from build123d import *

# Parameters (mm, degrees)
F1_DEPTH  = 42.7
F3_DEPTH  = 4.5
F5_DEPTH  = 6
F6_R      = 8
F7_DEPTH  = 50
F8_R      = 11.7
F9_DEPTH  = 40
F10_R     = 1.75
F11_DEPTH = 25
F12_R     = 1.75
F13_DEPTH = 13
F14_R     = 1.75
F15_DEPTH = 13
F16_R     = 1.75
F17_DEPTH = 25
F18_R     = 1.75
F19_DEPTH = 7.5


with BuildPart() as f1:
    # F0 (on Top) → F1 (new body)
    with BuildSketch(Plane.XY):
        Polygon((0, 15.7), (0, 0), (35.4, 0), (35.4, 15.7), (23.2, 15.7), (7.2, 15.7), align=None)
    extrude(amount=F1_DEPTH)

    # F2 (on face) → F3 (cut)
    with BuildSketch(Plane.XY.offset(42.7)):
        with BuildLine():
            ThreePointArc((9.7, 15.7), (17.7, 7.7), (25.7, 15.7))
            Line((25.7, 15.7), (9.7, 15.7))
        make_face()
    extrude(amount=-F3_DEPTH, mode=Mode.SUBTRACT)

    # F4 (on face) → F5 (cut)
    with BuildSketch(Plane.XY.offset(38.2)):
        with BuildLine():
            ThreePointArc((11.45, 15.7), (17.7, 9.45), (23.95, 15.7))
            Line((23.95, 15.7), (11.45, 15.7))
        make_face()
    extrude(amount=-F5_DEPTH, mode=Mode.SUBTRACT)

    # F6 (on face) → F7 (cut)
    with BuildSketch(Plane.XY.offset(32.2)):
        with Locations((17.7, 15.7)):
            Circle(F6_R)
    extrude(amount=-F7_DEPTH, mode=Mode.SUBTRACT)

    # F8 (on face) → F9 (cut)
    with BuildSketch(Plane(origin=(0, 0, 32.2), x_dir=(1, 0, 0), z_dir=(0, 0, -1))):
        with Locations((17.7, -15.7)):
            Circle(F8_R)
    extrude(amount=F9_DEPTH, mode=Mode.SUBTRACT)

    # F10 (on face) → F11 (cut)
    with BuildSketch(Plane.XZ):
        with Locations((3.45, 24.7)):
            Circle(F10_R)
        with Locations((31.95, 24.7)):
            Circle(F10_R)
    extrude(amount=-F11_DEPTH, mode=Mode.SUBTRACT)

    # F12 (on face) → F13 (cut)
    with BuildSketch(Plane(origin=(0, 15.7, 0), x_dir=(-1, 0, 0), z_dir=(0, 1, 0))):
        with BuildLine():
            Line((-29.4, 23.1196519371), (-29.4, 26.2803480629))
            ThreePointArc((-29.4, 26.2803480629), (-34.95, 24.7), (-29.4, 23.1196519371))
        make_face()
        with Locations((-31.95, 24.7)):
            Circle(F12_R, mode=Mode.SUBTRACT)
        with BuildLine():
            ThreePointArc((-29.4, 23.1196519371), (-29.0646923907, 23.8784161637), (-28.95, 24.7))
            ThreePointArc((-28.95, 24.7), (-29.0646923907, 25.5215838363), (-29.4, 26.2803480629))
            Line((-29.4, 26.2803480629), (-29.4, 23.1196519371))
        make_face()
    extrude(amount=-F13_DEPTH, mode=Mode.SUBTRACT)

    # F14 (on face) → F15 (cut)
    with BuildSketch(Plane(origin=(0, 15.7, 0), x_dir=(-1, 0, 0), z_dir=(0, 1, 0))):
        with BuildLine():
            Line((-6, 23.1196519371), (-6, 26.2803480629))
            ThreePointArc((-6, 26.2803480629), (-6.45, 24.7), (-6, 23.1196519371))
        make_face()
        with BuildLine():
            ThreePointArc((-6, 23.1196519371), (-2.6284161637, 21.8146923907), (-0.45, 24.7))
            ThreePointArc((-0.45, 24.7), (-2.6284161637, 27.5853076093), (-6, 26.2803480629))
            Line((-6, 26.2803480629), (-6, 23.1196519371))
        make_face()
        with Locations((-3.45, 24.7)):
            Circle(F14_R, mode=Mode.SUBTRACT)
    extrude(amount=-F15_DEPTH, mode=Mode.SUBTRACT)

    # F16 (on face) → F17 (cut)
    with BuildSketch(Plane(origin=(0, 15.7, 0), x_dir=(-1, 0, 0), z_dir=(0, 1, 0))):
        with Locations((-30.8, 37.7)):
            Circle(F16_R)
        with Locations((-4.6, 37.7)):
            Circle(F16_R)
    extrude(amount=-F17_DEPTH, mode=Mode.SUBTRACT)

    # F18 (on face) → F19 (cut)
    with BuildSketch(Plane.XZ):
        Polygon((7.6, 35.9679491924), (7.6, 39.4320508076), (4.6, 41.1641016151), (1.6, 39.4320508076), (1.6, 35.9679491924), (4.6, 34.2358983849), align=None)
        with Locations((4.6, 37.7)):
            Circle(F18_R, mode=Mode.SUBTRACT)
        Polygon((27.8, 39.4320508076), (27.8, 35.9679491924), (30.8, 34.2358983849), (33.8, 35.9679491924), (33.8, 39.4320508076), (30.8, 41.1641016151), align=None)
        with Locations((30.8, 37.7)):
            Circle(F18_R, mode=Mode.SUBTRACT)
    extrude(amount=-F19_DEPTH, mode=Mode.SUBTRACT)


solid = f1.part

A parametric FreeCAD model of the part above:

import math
import FreeCAD as App
import Part
import Sketcher
from FreeCAD import Vector
Q = App.Units.Quantity


def add_polygon(sketch, points):
    """Adds a closed chain of lines whose ends are joined by coincident constraints."""
    first, n = sketch.GeometryCount, len(points)
    for a, b in zip(points, points[1:] + points[:1]):
        sketch.addGeometry(Part.LineSegment(App.Vector(*a, 0), App.Vector(*b, 0)), False)
    for i in range(n):
        sketch.addConstraint(Sketcher.Constraint("Coincident", first + i, 2, first + (i + 1) % n, 1))

doc = App.newDocument("Part")
body = doc.addObject("PartDesign::Body", "Body")

sketch1 = body.newObject("Sketcher::SketchObject", "Sketch")
sketch1.AttachmentSupport = (doc.getObject("XY_Plane"), [""])
sketch1.MapMode = "FlatFace"
add_polygon(sketch1, [(0, 15.7), (0, 0), (35.4, 0), (35.4, 15.7)])
sketch1.addConstraint([
    Sketcher.Constraint("Vertical", 0),
    Sketcher.Constraint("Horizontal", 1),
    Sketcher.Constraint("Vertical", 2),
    Sketcher.Constraint("Horizontal", 3),
    Sketcher.Constraint("Coincident", 0, 2, -1, 1),
    Sketcher.Constraint("DistanceX", 1, 1, 1, 2, Q("35.4 mm")),
    Sketcher.Constraint("DistanceY", 0, 2, 0, 1, Q("15.7 mm")),
])
pad1 = body.newObject("PartDesign::Pad", "Pad")
pad1.Profile = sketch1
pad1.Length = 42.7

sketch2 = body.newObject("Sketcher::SketchObject", "Sketch001")
sketch2.AttachmentSupport = (doc.getObject("XY_Plane"), [""])
sketch2.MapMode = "FlatFace"
sketch2.AttachmentOffset = App.Placement(Vector(0, 0, 42.7), App.Rotation())
sketch2.addGeometry([
    Part.ArcOfCircle(Part.Circle(Vector(17.7, 15.7, 0), Vector(0, 0, 1), 8), math.radians(180), math.radians(360)),
    Part.LineSegment(Vector(25.7, 15.7, 0), Vector(9.7, 15.7, 0)),
], False)
sketch2.addConstraint([
    Sketcher.Constraint("Coincident", 0, 1, 1, 2),
    Sketcher.Constraint("Coincident", 1, 1, 0, 2),
    Sketcher.Constraint("Horizontal", 1),
    Sketcher.Constraint("Radius", 0, Q("8 mm")),
    Sketcher.Constraint("DistanceX", -1, 1, 0, 3, Q("17.7 mm")),
    Sketcher.Constraint("DistanceY", -1, 1, 0, 3, Q("15.7 mm")),
    Sketcher.Constraint("DistanceY", -1, 1, 0, 1, Q("15.7 mm")),
])
pocket1 = body.newObject("PartDesign::Pocket", "Pocket")
pocket1.Profile = sketch2
pocket1.Length = 4.5

sketch3 = body.newObject("Sketcher::SketchObject", "Sketch002")
sketch3.AttachmentSupport = (doc.getObject("XY_Plane"), [""])
sketch3.MapMode = "FlatFace"
sketch3.AttachmentOffset = App.Placement(Vector(0, 0, 38.2), App.Rotation())
sketch3.addGeometry([
    Part.ArcOfCircle(Part.Circle(Vector(17.7, 15.7, 0), Vector(0, 0, 1), 6.25), math.radians(180), math.radians(360)),
    Part.LineSegment(Vector(23.95, 15.7, 0), Vector(11.45, 15.7, 0)),
], False)
sketch3.addConstraint([
    Sketcher.Constraint("Coincident", 0, 1, 1, 2),
    Sketcher.Constraint("Coincident", 1, 1, 0, 2),
    Sketcher.Constraint("Horizontal", 1),
    Sketcher.Constraint("Radius", 0, Q("6.25 mm")),
    Sketcher.Constraint("DistanceX", -1, 1, 0, 3, Q("17.7 mm")),
    Sketcher.Constraint("DistanceY", -1, 1, 0, 3, Q("15.7 mm")),
    Sketcher.Constraint("DistanceY", -1, 1, 0, 1, Q("15.7 mm")),
])
pocket2 = body.newObject("PartDesign::Pocket", "Pocket001")
pocket2.Profile = sketch3
pocket2.Length = 6

sketch4 = body.newObject("Sketcher::SketchObject", "Sketch003")
sketch4.AttachmentSupport = (doc.getObject("XY_Plane"), [""])
sketch4.MapMode = "FlatFace"
sketch4.AttachmentOffset = App.Placement(Vector(0, 0, 32.2), App.Rotation())
sketch4.addGeometry(Part.Circle(Vector(17.7, 15.7, 0), Vector(0, 0, 1), 8), False)
sketch4.addConstraint([
    Sketcher.Constraint("Diameter", 0, Q("16 mm")),
    Sketcher.Constraint("DistanceX", -1, 1, 0, 3, Q("17.7 mm")),
    Sketcher.Constraint("DistanceY", -1, 1, 0, 3, Q("15.7 mm")),
])
pocket3 = body.newObject("PartDesign::Pocket", "Pocket002")
pocket3.Profile = sketch4
pocket3.Length = 50

sketch5 = body.newObject("Sketcher::SketchObject", "Sketch004")
sketch5.AttachmentSupport = (doc.getObject("XY_Plane"), [""])
sketch5.MapMode = "FlatFace"
sketch5.AttachmentOffset = App.Placement(Vector(0, 0, 32.2), App.Rotation())
sketch5.addGeometry(Part.Circle(Vector(17.7, 15.7, 0), Vector(0, 0, 1), 11.7), False)
sketch5.addConstraint([
    Sketcher.Constraint("Diameter", 0, Q("23.4 mm")),
    Sketcher.Constraint("DistanceX", -1, 1, 0, 3, Q("17.7 mm")),
    Sketcher.Constraint("DistanceY", -1, 1, 0, 3, Q("15.7 mm")),
])
pocket4 = body.newObject("PartDesign::Pocket", "Pocket003")
pocket4.Profile = sketch5
pocket4.Length = 40

sketch6 = body.newObject("Sketcher::SketchObject", "Sketch005")
sketch6.AttachmentSupport = (doc.getObject("XZ_Plane"), [""])
sketch6.MapMode = "FlatFace"
sketch6.addGeometry([
    Part.Circle(Vector(3.45, 24.7, 0), Vector(0, 0, 1), 1.75),
    Part.Circle(Vector(31.95, 24.7, 0), Vector(0, 0, 1), 1.75),
], False)
sketch6.addConstraint([
    Sketcher.Constraint("Equal", 0, 1),
    Sketcher.Constraint("Horizontal", 0, 3, 1, 3),
    Sketcher.Constraint("Diameter", 0, Q("3.5 mm")),
    Sketcher.Constraint("DistanceY", -1, 1, 0, 3, Q("24.7 mm")),
    Sketcher.Constraint("DistanceX", 0, 3, 1, 3, Q("28.5 mm")),
    Sketcher.Constraint("DistanceX", -1, 1, 0, 3, Q("3.45 mm")),
])
pocket5 = body.newObject("PartDesign::Pocket", "Pocket004")
pocket5.Profile = sketch6
pocket5.Length = 25

sketch7 = body.newObject("Sketcher::SketchObject", "Sketch006")
sketch7.AttachmentSupport = (doc.getObject("XZ_Plane"), [""])
sketch7.MapMode = "FlatFace"
sketch7.AttachmentOffset = App.Placement(Vector(0, 0, -15.7), App.Rotation())
sketch7.addGeometry([
    Part.ArcOfCircle(Part.Circle(Vector(31.95, 24.7, 0), Vector(0, 0, 1), 3), math.radians(-148.211669), math.radians(148.211669)),
    Part.ArcOfCircle(Part.Circle(Vector(31.95, 24.7, 0), Vector(0, 0, 1), 3), math.radians(180), math.radians(211.788331)),
    Part.ArcOfCircle(Part.Circle(Vector(31.95, 24.7, 0), Vector(0, 0, 1), 3), math.radians(148.211669), math.radians(180)),
    Part.Circle(Vector(31.95, 24.7, 0), Vector(0, 0, 1), 1.75),
], False)
sketch7.addConstraint([
    Sketcher.Constraint("Tangent", 0, 1, 1, 2),
    Sketcher.Constraint("Tangent", 1, 1, 2, 2),
    Sketcher.Constraint("Tangent", 2, 1, 0, 2),
    Sketcher.Constraint("Coincident", 3, 3, 0, 3),
    Sketcher.Constraint("Horizontal", 3, 3, 1, 1),
    Sketcher.Constraint("Vertical", 0, 1, 2, 1),
    Sketcher.Constraint("Radius", 0, Q("3 mm")),
    Sketcher.Constraint("Diameter", 3, Q("3.5 mm")),
    Sketcher.Constraint("DistanceY", -1, 1, 0, 3, Q("24.7 mm")),
    Sketcher.Constraint("DistanceX", -1, 1, 0, 1, Q("29.4 mm")),
    Sketcher.Constraint("DistanceX", -1, 1, 0, 3, Q("31.95 mm")),
])
pocket6 = body.newObject("PartDesign::Pocket", "Pocket005")
pocket6.Profile = sketch7
pocket6.Length = 13
pocket6.Reversed = True

sketch8 = body.newObject("Sketcher::SketchObject", "Sketch007")
sketch8.AttachmentSupport = (doc.getObject("XZ_Plane"), [""])
sketch8.MapMode = "FlatFace"
sketch8.AttachmentOffset = App.Placement(Vector(0, 0, -15.7), App.Rotation())
sketch8.addGeometry([
    Part.ArcOfCircle(Part.Circle(Vector(3.45, 24.7, 0), Vector(0, 0, 1), 3), math.radians(-31.788331), math.radians(31.788331)),
    Part.ArcOfCircle(Part.Circle(Vector(3.45, 24.7, 0), Vector(0, 0, 1), 3), math.radians(180), math.radians(328.211669)),
    Part.ArcOfCircle(Part.Circle(Vector(3.45, 24.7, 0), Vector(0, 0, 1), 3), math.radians(31.788331), math.radians(180)),
    Part.Circle(Vector(3.45, 24.7, 0), Vector(0, 0, 1), 1.75),
], False)
sketch8.addConstraint([
    Sketcher.Constraint("Tangent", 0, 1, 1, 2),
    Sketcher.Constraint("Tangent", 1, 1, 2, 2),
    Sketcher.Constraint("Tangent", 2, 1, 0, 2),
    Sketcher.Constraint("Coincident", 3, 3, 0, 3),
    Sketcher.Constraint("Horizontal", 3, 3, 1, 1),
    Sketcher.Constraint("Vertical", 0, 1, 2, 1),
    Sketcher.Constraint("Radius", 0, Q("3 mm")),
    Sketcher.Constraint("Diameter", 3, Q("3.5 mm")),
    Sketcher.Constraint("DistanceX", -1, 1, 0, 1, Q("6 mm")),
    Sketcher.Constraint("DistanceY", -1, 1, 0, 3, Q("24.7 mm")),
    Sketcher.Constraint("DistanceX", -1, 1, 0, 3, Q("3.45 mm")),
])
pocket7 = body.newObject("PartDesign::Pocket", "Pocket006")
pocket7.Profile = sketch8
pocket7.Length = 13
pocket7.Reversed = True

sketch9 = body.newObject("Sketcher::SketchObject", "Sketch008")
sketch9.AttachmentSupport = (doc.getObject("XZ_Plane"), [""])
sketch9.MapMode = "FlatFace"
sketch9.AttachmentOffset = App.Placement(Vector(0, 0, -15.7), App.Rotation())
sketch9.addGeometry([
    Part.Circle(Vector(30.8, 37.7, 0), Vector(0, 0, 1), 1.75),
    Part.Circle(Vector(4.6, 37.7, 0), Vector(0, 0, 1), 1.75),
], False)
sketch9.addConstraint([
    Sketcher.Constraint("Equal", 0, 1),
    Sketcher.Constraint("Horizontal", 0, 3, 1, 3),
    Sketcher.Constraint("Diameter", 0, Q("3.5 mm")),
    Sketcher.Constraint("DistanceX", -1, 1, 0, 3, Q("30.8 mm")),
    Sketcher.Constraint("DistanceY", -1, 1, 0, 3, Q("37.7 mm")),
    Sketcher.Constraint("DistanceX", -1, 1, 1, 3, Q("4.6 mm")),
])
pocket8 = body.newObject("PartDesign::Pocket", "Pocket007")
pocket8.Profile = sketch9
pocket8.Length = 25
pocket8.Reversed = True

sketch10 = body.newObject("Sketcher::SketchObject", "Sketch009")
sketch10.AttachmentSupport = (doc.getObject("XZ_Plane"), [""])
sketch10.MapMode = "FlatFace"
add_polygon(sketch10, [(7.6, 35.967949), (7.6, 39.432051), (4.6, 41.164102), (1.6, 39.432051), (1.6, 35.967949), (4.6, 34.235898)])
sketch10.addGeometry(Part.Circle(Vector(4.6, 37.7, 0), Vector(0, 0, 1), 1.75), False)
add_polygon(sketch10, [(27.8, 39.432051), (27.8, 35.967949), (30.8, 34.235898), (33.8, 35.967949), (33.8, 39.432051), (30.8, 41.164102)])
sketch10.addGeometry(Part.Circle(Vector(30.8, 37.7, 0), Vector(0, 0, 1), 1.75), False)
sketch10.addConstraint([
    Sketcher.Constraint("Vertical", 0),
    Sketcher.Constraint("Vertical", 3),
    Sketcher.Constraint("Vertical", 7),
    Sketcher.Constraint("Vertical", 10),
    Sketcher.Constraint("Equal", 6, 13),
    Sketcher.Constraint("Parallel", 1, 4),
    Sketcher.Constraint("Parallel", 2, 5),
    Sketcher.Constraint("Parallel", 4, 8),
    Sketcher.Constraint("Parallel", 5, 9),
    Sketcher.Constraint("Parallel", 8, 11),
    Sketcher.Constraint("Parallel", 9, 12),
    Sketcher.Constraint("Horizontal", 6, 3, 13, 3),
    Sketcher.Constraint("Horizontal", 0, 2, 2, 2),
    Sketcher.Constraint("Horizontal", 3, 2, 5, 2),
    Sketcher.Constraint("Horizontal", 5, 2, 7, 2),
    Sketcher.Constraint("Horizontal", 4, 2, 8, 2),
    Sketcher.Constraint("Horizontal", 7, 2, 9, 2),
    Sketcher.Constraint("Horizontal", 2, 2, 10, 2),
    Sketcher.Constraint("Horizontal", 1, 2, 11, 2),
    Sketcher.Constraint("Vertical", 6, 3, 1, 2),
    Sketcher.Constraint("Vertical", 1, 2, 4, 2),
    Sketcher.Constraint("Vertical", 13, 3, 8, 2),
    Sketcher.Constraint("Diameter", 6, Q("3.5 mm")),
    Sketcher.Constraint("Angle", 1, Q("150 deg")),
    Sketcher.Constraint("DistanceX", 6, 3, 0, 2, Q("3 mm")),
    Sketcher.Constraint("DistanceX", -1, 1, 6, 3, Q("4.6 mm")),
    Sketcher.Constraint("DistanceY", -1, 1, 6, 3, Q("37.7 mm")),
    Sketcher.Constraint("DistanceX", -1, 1, 13, 3, Q("30.8 mm")),
    Sketcher.Constraint("DistanceY", 0, 1, 0, 2, Q("3.464102 mm")),
    Sketcher.Constraint("DistanceY", -1, 1, 1, 2, Q("41.164102 mm")),
])
pocket9 = body.newObject("PartDesign::Pocket", "Pocket008")
pocket9.Profile = sketch10
pocket9.Length = 7.5

doc.recompute()
